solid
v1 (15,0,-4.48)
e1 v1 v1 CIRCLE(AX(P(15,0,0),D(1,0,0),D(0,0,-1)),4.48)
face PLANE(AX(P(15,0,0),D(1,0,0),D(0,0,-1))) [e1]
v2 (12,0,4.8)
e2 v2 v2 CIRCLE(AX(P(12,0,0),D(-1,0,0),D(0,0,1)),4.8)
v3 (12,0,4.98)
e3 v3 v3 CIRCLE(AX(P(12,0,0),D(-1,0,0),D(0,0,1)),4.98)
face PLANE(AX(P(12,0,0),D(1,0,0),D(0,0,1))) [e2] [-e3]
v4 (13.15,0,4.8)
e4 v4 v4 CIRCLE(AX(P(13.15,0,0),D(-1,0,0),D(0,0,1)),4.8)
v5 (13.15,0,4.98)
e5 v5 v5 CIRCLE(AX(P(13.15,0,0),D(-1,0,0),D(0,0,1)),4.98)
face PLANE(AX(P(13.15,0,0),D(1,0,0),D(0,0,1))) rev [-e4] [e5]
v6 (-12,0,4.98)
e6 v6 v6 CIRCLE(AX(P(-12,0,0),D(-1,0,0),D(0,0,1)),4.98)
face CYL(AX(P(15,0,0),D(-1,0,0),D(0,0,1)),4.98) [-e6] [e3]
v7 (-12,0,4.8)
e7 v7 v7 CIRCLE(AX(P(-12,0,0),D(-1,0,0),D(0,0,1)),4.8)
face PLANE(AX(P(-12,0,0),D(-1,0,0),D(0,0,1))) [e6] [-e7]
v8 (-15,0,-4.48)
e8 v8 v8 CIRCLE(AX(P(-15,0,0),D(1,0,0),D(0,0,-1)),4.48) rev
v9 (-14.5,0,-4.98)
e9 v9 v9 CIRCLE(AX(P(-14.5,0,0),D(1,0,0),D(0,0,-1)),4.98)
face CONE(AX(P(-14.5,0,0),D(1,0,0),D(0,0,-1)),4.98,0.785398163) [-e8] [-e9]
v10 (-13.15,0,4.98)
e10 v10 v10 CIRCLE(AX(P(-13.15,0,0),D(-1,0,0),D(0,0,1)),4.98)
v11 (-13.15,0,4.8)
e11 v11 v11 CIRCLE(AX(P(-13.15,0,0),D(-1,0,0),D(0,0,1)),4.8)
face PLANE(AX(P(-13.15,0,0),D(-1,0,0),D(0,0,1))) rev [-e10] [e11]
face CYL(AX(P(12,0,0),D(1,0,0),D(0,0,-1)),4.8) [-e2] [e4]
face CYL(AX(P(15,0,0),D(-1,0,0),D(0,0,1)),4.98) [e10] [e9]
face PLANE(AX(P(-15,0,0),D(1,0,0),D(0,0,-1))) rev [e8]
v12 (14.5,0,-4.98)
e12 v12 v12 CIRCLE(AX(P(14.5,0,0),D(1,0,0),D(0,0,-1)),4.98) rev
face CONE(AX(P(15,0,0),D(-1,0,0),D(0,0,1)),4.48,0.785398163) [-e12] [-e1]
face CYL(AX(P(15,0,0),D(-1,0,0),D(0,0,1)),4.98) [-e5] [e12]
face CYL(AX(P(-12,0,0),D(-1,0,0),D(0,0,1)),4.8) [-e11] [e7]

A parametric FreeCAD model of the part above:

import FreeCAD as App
import Part
import Sketcher

V = App.Vector
Q = App.Units.Quantity


def edges_at(feature, points):
    """Names of the edges that pass closest to the given points."""
    edges = feature.Shape.Edges
    near = lambda p: min(range(len(edges)), key=lambda i: edges[i].distToShape(Part.Vertex(*p))[0])
    return sorted({f"Edge{near(p) + 1}" for p in points})

doc = App.newDocument("Part")
body = doc.addObject("PartDesign::Body", "Body")

sketch1 = body.newObject("Sketcher::SketchObject", "Sketch")
sketch1.AttachmentSupport = (doc.getObject("YZ_Plane"), [""])
sketch1.MapMode = "FlatFace"
sketch1.addGeometry(Part.Circle(V(0, 0, 0), V(0, 0, 1), 4.98), False)
sketch1.addConstraint(Sketcher.Constraint("Coincident", 0, 3, -1, 1))
sketch1.addConstraint(Sketcher.Constraint("Diameter", 0, Q("9.96 mm")))
pad1 = body.newObject("PartDesign::Pad", "Pad")
pad1.Profile = sketch1
pad1.Length = 30
pad1.Midplane = True

sketch2 = body.newObject("Sketcher::SketchObject", "Sketch001")
sketch2.AttachmentSupport = (doc.getObject("YZ_Plane"), [""])
sketch2.MapMode = "FlatFace"
sketch2.AttachmentOffset = App.Placement(V(0, 0, -12), App.Rotation())
sketch2.addGeometry(Part.Circle(V(0, 0, 0), V(0, 0, 1), 4.98), False)
sketch2.addGeometry(Part.Circle(V(0, 0, 0), V(0, 0, 1), 4.8), False)
sketch2.addConstraint(Sketcher.Constraint("Coincident", 0, 3, -1, 1))
sketch2.addConstraint(Sketcher.Constraint("Coincident", 1, 3, -1, 1))
sketch2.addConstraint(Sketcher.Constraint("Diameter", 1, Q("9.6 mm")))
sketch2.addConstraint(Sketcher.Constraint("Diameter", 0, Q("9.96 mm")))
pocket1 = body.newObject("PartDesign::Pocket", "Pocket")
pocket1.Profile = sketch2
pocket1.Length = 1.15
doc.recompute()

chamfer = body.newObject("PartDesign::Chamfer", "Chamfer")
chamfer.Base = (pocket1, edges_at(pocket1, [(-15, 0, 4.98)]))
chamfer.Size = 0.5
doc.recompute()

mirrored = body.newObject("PartDesign::Mirrored", "Mirrored")
mirrored.Originals = [pocket1]
mirrored.MirrorPlane = (doc.getObject("YZ_Plane"), [""])
body.Tip = mirrored
doc.recompute()

chamfer2 = body.newObject("PartDesign::Chamfer", "Chamfer001")
chamfer2.Base = (mirrored, edges_at(mirrored, [(15, 0, 4.98)]))
chamfer2.Size = 0.5

doc.recompute()
